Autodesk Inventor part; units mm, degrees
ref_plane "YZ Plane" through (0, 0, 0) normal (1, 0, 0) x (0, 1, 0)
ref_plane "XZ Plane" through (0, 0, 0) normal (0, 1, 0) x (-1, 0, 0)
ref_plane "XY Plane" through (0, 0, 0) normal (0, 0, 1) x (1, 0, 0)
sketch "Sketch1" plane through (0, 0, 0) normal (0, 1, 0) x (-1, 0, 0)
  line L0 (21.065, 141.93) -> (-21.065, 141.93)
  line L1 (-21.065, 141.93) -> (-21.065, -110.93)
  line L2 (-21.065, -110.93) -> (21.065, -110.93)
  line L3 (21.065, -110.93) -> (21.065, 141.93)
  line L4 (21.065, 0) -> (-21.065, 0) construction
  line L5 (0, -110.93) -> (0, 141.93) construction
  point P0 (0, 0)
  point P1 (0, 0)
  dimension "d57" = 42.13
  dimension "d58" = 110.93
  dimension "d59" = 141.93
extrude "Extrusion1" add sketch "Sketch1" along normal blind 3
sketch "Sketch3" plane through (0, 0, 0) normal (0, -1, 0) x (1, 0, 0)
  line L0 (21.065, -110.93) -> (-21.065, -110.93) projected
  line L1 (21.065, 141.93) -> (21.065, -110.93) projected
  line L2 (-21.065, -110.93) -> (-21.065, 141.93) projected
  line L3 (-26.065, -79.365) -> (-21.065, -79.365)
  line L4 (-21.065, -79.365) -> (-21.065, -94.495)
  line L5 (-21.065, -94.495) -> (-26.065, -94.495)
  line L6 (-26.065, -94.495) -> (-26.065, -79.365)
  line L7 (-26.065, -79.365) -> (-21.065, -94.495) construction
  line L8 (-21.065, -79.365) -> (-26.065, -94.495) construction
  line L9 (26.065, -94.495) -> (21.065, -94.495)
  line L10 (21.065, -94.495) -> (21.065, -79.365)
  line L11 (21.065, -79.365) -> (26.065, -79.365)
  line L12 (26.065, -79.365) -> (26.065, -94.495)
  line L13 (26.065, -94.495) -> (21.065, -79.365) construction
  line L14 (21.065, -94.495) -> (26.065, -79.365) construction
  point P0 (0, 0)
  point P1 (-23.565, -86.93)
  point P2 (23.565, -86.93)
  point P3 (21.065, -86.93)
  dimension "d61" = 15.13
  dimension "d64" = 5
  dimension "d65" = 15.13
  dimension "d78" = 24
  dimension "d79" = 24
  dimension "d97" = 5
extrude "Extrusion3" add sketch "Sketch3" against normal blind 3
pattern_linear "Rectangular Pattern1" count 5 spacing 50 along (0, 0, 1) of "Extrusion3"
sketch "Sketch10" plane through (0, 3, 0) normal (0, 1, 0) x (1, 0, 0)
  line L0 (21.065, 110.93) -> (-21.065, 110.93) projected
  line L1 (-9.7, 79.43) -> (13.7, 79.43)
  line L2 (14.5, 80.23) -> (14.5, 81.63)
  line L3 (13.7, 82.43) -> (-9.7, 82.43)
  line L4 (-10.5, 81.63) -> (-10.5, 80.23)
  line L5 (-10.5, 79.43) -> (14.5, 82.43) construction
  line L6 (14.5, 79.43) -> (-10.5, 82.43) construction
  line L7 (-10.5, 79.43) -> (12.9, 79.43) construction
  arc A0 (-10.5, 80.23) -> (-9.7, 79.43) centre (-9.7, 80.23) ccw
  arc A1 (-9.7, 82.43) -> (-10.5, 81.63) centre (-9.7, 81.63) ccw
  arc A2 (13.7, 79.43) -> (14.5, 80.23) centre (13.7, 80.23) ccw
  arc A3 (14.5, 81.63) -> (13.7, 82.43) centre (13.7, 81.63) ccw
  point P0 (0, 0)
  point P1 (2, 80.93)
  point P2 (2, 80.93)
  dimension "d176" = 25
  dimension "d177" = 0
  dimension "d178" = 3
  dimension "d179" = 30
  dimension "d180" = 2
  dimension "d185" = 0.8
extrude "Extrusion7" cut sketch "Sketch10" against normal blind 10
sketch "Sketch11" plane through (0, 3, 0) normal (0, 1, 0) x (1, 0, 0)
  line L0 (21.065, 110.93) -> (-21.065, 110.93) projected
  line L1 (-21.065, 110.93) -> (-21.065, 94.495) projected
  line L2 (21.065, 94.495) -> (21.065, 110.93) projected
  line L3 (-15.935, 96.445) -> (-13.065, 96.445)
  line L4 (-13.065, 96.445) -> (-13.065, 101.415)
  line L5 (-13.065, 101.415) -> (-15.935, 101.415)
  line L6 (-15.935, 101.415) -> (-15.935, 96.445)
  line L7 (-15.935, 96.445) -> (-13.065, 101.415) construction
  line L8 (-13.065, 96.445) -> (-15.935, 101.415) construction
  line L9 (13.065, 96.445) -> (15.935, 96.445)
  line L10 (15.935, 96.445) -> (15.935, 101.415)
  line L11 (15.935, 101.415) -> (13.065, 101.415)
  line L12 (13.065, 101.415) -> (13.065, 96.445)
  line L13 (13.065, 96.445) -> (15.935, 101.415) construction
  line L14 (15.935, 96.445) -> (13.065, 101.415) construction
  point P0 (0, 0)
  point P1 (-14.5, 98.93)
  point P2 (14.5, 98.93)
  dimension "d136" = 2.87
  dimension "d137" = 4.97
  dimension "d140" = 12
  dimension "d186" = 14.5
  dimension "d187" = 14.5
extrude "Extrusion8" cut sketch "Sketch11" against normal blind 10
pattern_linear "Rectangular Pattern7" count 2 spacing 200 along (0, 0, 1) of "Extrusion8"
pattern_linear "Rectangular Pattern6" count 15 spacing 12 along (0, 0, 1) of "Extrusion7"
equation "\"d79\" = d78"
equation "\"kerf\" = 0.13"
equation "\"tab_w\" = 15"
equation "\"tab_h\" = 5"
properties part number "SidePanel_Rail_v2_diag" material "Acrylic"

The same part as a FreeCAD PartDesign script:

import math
import FreeCAD as App
import Part
import Sketcher


def add_polygon(sketch, points):
    """Adds a closed chain of lines whose ends are joined by coincident constraints."""
    first, n = sketch.GeometryCount, len(points)
    for a, b in zip(points, points[1:] + points[:1]):
        sketch.addGeometry(Part.LineSegment(App.Vector(*a, 0), App.Vector(*b, 0)), False)
    for i in range(n):
        sketch.addConstraint(Sketcher.Constraint("Coincident", first + i, 2, first + (i + 1) % n, 1))

doc = App.newDocument("Part")
params = doc.addObject("Spreadsheet::Sheet", "Params")
for row, (alias, value) in enumerate([
    ("sketch1_width", "42.13 mm"),
    ("pad1_length", "3 mm"),
    ("sketch2_width", "5 mm"),
    ("sketch2_height", "15.13 mm"),
    ("pad2_length", "3 mm"),
    ("linearpattern_pitch", "50 mm"),
    ("sketch3_radius", "0.8 mm"),
    ("sketch3_width", "23.4 mm"),
    ("pocket1_length", "10 mm"),
    ("sketch4_width", "2.87 mm"),
    ("sketch4_height", "4.97 mm"),
    ("pocket2_length", "10 mm"),
    ("linearpattern2_pitch", "200 mm"),
    ("linearpattern3_pitch", "12 mm"),
], start=1):
    params.set(f"A{row}", alias)
    params.set(f"B{row}", "=" + value)
    params.setAlias(f"B{row}", alias)

body = doc.addObject("PartDesign::Body", "Body")

# Sketch on XZ plane
sketch1 = body.newObject("Sketcher::SketchObject", "Sketch")
sketch1.AttachmentSupport = (doc.getObject("XZ_Plane"), [""])
sketch1.MapMode = "FlatFace"
add_polygon(sketch1, [(-21, -111), (-21, 142), (21, 142), (21, -111)])  # lines 0-3
sketch1.addConstraint([
    Sketcher.Constraint("Vertical", 0),
    Sketcher.Constraint("Horizontal", 1),
    Sketcher.Constraint("Vertical", 2),
    Sketcher.Constraint("Horizontal", 3),
    Sketcher.Constraint("DistanceX", 1, 1, 1, 2, 42.13),
    Sketcher.Constraint("DistanceY", -1, 1, 0, 2, 141.93),
    Sketcher.Constraint("DistanceY", 2, 2, -1, 1, 110.93),
    Sketcher.Constraint("DistanceX", 0, 2, -1, 1, 21.065),
])
sketch1.setExpression("Constraints[8]", "Params.sketch1_width")
pad1 = body.newObject("PartDesign::Pad", "Pad")
pad1.Profile = sketch1
pad1.setExpression("Length", "Params.pad1_length")
pad1.Reversed = True

# Sketch on XZ plane
sketch2 = body.newObject("Sketcher::SketchObject", "Sketch001")
sketch2.AttachmentSupport = (doc.getObject("XZ_Plane"), [""])
sketch2.MapMode = "FlatFace"
add_polygon(sketch2, [(-26, -94), (-21, -94), (-21, -79), (-26, -79)])  # lines 0-3
add_polygon(sketch2, [(21, -79), (21, -94), (26, -94), (26, -79)])  # lines 4-7
sketch2.addConstraint([
    Sketcher.Constraint("Horizontal", 0),
    Sketcher.Constraint("Vertical", 1),
    Sketcher.Constraint("Horizontal", 2),
    Sketcher.Constraint("Vertical", 3),
    Sketcher.Constraint("Vertical", 4),
    Sketcher.Constraint("Horizontal", 5),
    Sketcher.Constraint("Vertical", 6),
    Sketcher.Constraint("Horizontal", 7),
    Sketcher.Constraint("Symmetric", 0, 2, 4, 2, -2),
    Sketcher.Constraint("Symmetric", 2, 2, 6, 2, -2),
    Sketcher.Constraint("DistanceX", 0, 1, 0, 2, 5.0),
    Sketcher.Constraint("DistanceY", 1, 1, 1, 2, 15.13),
    Sketcher.Constraint("DistanceX", 0, 2, 4, 2, 42.13),
    Sketcher.Constraint("DistanceY", 0, 2, -1, 1, 94.495),
])
sketch2.setExpression("Constraints[18]", "Params.sketch2_width")
sketch2.setExpression("Constraints[19]", "Params.sketch2_height")
pad2 = body.newObject("PartDesign::Pad", "Pad001")
pad2.Profile = sketch2
pad2.setExpression("Length", "Params.pad2_length")
pad2.Reversed = True
doc.recompute()

linearpattern = body.newObject("PartDesign::LinearPattern", "LinearPattern")
linearpattern.Originals = [pad2]
linearpattern.Direction = (doc.getObject("Z_Axis"), [""])
linearpattern.Mode = "offset"
linearpattern.setExpression("Offset", "Params.linearpattern_pitch")
linearpattern.Occurrences = 5
body.Tip = linearpattern

# Sketch on XZ plane
sketch3 = body.newObject("Sketcher::SketchObject", "Sketch002")
sketch3.AttachmentSupport = (doc.getObject("XZ_Plane"), [""])
sketch3.MapMode = "FlatFace"
sketch3.AttachmentOffset = App.Placement(App.Vector(0, 0, -3), App.Rotation())
sketch3.addGeometry([
    Part.ArcOfCircle(Part.Circle(App.Vector(-9.7, -80.2, 0), App.Vector(0, 0, 1), 0.8), math.radians(90), math.radians(180)),  # 0
    Part.LineSegment(App.Vector(-9.7, -79.4, 0), App.Vector(13.7, -79.4, 0)),  # 1
    Part.ArcOfCircle(Part.Circle(App.Vector(13.7, -80.2, 0), App.Vector(0, 0, 1), 0.8), math.radians(0), math.radians(90)),  # 2
    Part.LineSegment(App.Vector(14.5, -80.2, 0), App.Vector(14.5, -81.6, 0)),  # 3
    Part.ArcOfCircle(Part.Circle(App.Vector(13.7, -81.6, 0), App.Vector(0, 0, 1), 0.8), math.radians(-90), math.radians(0)),  # 4
    Part.LineSegment(App.Vector(13.7, -82.4, 0), App.Vector(-9.7, -82.4, 0)),  # 5
    Part.ArcOfCircle(Part.Circle(App.Vector(-9.7, -81.6, 0), App.Vector(0, 0, 1), 0.8), math.radians(180), math.radians(270)),  # 6
    Part.LineSegment(App.Vector(-10.5, -81.6, 0), App.Vector(-10.5, -80.2, 0)),  # 7
], False)
sketch3.addConstraint([
    Sketcher.Constraint("Tangent", 0, 1, 1, 1),
    Sketcher.Constraint("Tangent", 1, 2, 2, 2),
    Sketcher.Constraint("Tangent", 2, 1, 3, 1),
    Sketcher.Constraint("Tangent", 3, 2, 4, 2),
    Sketcher.Constraint("Tangent", 4, 1, 5, 1),
    Sketcher.Constraint("Tangent", 5, 2, 6, 2),
    Sketcher.Constraint("Tangent", 6, 1, 7, 1),
    Sketcher.Constraint("Tangent", 7, 2, 0, 2),
    Sketcher.Constraint("Horizontal", 1),
    Sketcher.Constraint("Vertical", 3),
    Sketcher.Constraint("Horizontal", 5),
    Sketcher.Constraint("Vertical", 7),
    Sketcher.Constraint("Equal", 0, 2),
    Sketcher.Constraint("Equal", 2, 4),
    Sketcher.Constraint("Equal", 4, 6),
    Sketcher.Constraint("Radius", 0, 0.8),
    Sketcher.Constraint("DistanceY", 4, 1, 1, 2, 3.0),
    Sketcher.Constraint("DistanceX", 1, 1, 1, 2, 23.4),
    Sketcher.Constraint("DistanceX", 0, 3, -1, 1, 9.7),
    Sketcher.Constraint("DistanceY", 0, 3, -1, 1, 80.23),
])
sketch3.setExpression("Constraints[15]", "Params.sketch3_radius")
sketch3.setExpression("Constraints[17]", "Params.sketch3_width")
pocket1 = body.newObject("PartDesign::Pocket", "Pocket")
pocket1.Profile = sketch3
pocket1.setExpression("Length", "Params.pocket1_length")
pocket1.Reversed = True

# Sketch on XZ plane
sketch4 = body.newObject("Sketcher::SketchObject", "Sketch003")
sketch4.AttachmentSupport = (doc.getObject("XZ_Plane"), [""])
sketch4.MapMode = "FlatFace"
sketch4.AttachmentOffset = App.Placement(App.Vector(0, 0, -3), App.Rotation())
add_polygon(sketch4, [(-15.9, -101.4), (-15.9, -96.4), (-13.1, -96.4), (-13.1, -101.4)])  # lines 0-3
add_polygon(sketch4, [(13.1, -101.4), (13.1, -96.4), (15.9, -96.4), (15.9, -101.4)])  # lines 4-7
sketch4.addConstraint([
    Sketcher.Constraint("Vertical", 0),
    Sketcher.Constraint("Horizontal", 1),
    Sketcher.Constraint("Vertical", 2),
    Sketcher.Constraint("Horizontal", 3),
    Sketcher.Constraint("Vertical", 4),
    Sketcher.Constraint("Horizontal", 5),
    Sketcher.Constraint("Vertical", 6),
    Sketcher.Constraint("Horizontal", 7),
    Sketcher.Constraint("Symmetric", 1, 2, 4, 2, -2),
    Sketcher.Constraint("Symmetric", 3, 2, 6, 2, -2),
    Sketcher.Constraint("DistanceX", 1, 1, 1, 2, 2.87),
    Sketcher.Constraint("DistanceY", 0, 1, 0, 2, 4.97),
    Sketcher.Constraint("DistanceX", 0, 2, 4, 2, 29.0),
    Sketcher.Constraint("DistanceY", 0, 2, -1, 1, 96.445),
])
sketch4.setExpression("Constraints[18]", "Params.sketch4_width")
sketch4.setExpression("Constraints[19]", "Params.sketch4_height")
pocket2 = body.newObject("PartDesign::Pocket", "Pocket001")
pocket2.Profile = sketch4
pocket2.setExpression("Length", "Params.pocket2_length")
pocket2.Reversed = True
doc.recompute()

linearpattern2 = body.newObject("PartDesign::LinearPattern", "LinearPattern001")
linearpattern2.Originals = [pocket2]
linearpattern2.Direction = (doc.getObject("Z_Axis"), [""])
linearpattern2.Mode = "offset"
linearpattern2.setExpression("Offset", "Params.linearpattern2_pitch")
linearpattern2.Occurrences = 2
body.Tip = linearpattern2
doc.recompute()

linearpattern3 = body.newObject("PartDesign::LinearPattern", "LinearPattern002")
linearpattern3.Originals = [pocket1]
linearpattern3.Direction = (doc.getObject("Z_Axis"), [""])
linearpattern3.Mode = "offset"
linearpattern3.setExpression("Offset", "Params.linearpattern3_pitch")
linearpattern3.Occurrences = 15
body.Tip = linearpattern3

doc.recompute()
